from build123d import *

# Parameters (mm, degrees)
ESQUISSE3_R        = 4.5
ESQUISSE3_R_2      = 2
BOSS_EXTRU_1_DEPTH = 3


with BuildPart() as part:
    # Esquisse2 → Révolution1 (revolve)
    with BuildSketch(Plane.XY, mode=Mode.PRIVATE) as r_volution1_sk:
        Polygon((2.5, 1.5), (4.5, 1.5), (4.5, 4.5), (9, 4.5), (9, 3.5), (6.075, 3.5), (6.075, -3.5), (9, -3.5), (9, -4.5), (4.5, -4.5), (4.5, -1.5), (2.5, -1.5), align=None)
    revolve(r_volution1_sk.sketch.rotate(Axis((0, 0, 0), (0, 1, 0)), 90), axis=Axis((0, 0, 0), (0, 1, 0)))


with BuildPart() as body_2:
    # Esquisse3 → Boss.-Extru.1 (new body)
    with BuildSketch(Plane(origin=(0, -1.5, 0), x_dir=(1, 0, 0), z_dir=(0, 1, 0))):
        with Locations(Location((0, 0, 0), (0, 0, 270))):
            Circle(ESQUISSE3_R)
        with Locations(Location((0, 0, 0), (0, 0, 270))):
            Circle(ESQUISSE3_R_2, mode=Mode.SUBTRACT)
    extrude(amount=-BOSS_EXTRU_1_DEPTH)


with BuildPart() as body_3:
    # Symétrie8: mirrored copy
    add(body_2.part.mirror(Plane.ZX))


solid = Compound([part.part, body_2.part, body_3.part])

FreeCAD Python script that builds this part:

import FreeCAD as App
import Part
import Sketcher
Q = App.Units.Quantity

doc = App.newDocument("Part")
params = doc.addObject("Spreadsheet::Sheet", "Params")
for row, (alias, value) in enumerate([
    ("sketch1_width", "2 mm"),
    ("sketch1_height", "3 mm"),
    ("sketch1_height2", "1 mm"),
    ("sketch1_width2", "4.5 mm"),
    ("revolution_angle", "360 deg"),
    ("sketch2_diameter", "9 mm"),
    ("sketch2_diameter2", "4 mm"),
    ("pad1_length", "3 mm"),
], start=1):
    params.set(f"A{row}", alias)
    params.set(f"B{row}", "=" + value)
    params.setAlias(f"B{row}", alias)

body = doc.addObject("PartDesign::Body", "Body")

# Sketch on XY plane
sketch1 = doc.addObject("Sketcher::SketchObject", "Sketch")
body.addObject(sketch1)
sketch1.AttachmentSupport = (doc.XY_Plane, [""])
sketch1.MapMode = "FlatFace"
sketch1.addGeometry([
    Part.LineSegment(App.Vector(4.5, 1.5, 0), App.Vector(2.5, 1.5, 0)),  # 0
    Part.LineSegment(App.Vector(2.5, 1.5, 0), App.Vector(2.5, -1.5, 0)),  # 1
    Part.LineSegment(App.Vector(2.5, -1.5, 0), App.Vector(4.5, -1.5, 0)),  # 2
    Part.LineSegment(App.Vector(4.5, -1.5, 0), App.Vector(4.5, -4.5, 0)),  # 3
    Part.LineSegment(App.Vector(4.5, -4.5, 0), App.Vector(9, -4.5, 0)),  # 4
    Part.LineSegment(App.Vector(9, -4.5, 0), App.Vector(9, -3.5, 0)),  # 5
    Part.LineSegment(App.Vector(9, -3.5, 0), App.Vector(6.075, -3.5, 0)),  # 6
    Part.LineSegment(App.Vector(6.075, -3.5, 0), App.Vector(6.075, 3.5, 0)),  # 7
    Part.LineSegment(App.Vector(6.075, 3.5, 0), App.Vector(9, 3.5, 0)),  # 8
    Part.LineSegment(App.Vector(9, 3.5, 0), App.Vector(9, 4.5, 0)),  # 9
    Part.LineSegment(App.Vector(9, 4.5, 0), App.Vector(4.5, 4.5, 0)),  # 10
    Part.LineSegment(App.Vector(4.5, 4.5, 0), App.Vector(4.5, 1.5, 0)),  # 11
], False)
sketch1.addConstraint([
    Sketcher.Constraint("Coincident", 0, 2, 1, 1),
    Sketcher.Constraint("Coincident", 1, 2, 2, 1),
    Sketcher.Constraint("Coincident", 2, 2, 3, 1),
    Sketcher.Constraint("Coincident", 3, 2, 4, 1),
    Sketcher.Constraint("Coincident", 4, 2, 5, 1),
    Sketcher.Constraint("Coincident", 5, 2, 6, 1),
    Sketcher.Constraint("Coincident", 6, 2, 7, 1),
    Sketcher.Constraint("Coincident", 7, 2, 8, 1),
    Sketcher.Constraint("Coincident", 8, 2, 9, 1),
    Sketcher.Constraint("Coincident", 9, 2, 10, 1),
    Sketcher.Constraint("Coincident", 10, 2, 11, 1),
    Sketcher.Constraint("Coincident", 11, 2, 0, 1),
    Sketcher.Constraint("Horizontal", 0),
    Sketcher.Constraint("Vertical", 1),
    Sketcher.Constraint("Horizontal", 2),
    Sketcher.Constraint("Vertical", 3),
    Sketcher.Constraint("Horizontal", 4),
    Sketcher.Constraint("Vertical", 5),
    Sketcher.Constraint("Horizontal", 6),
    Sketcher.Constraint("Vertical", 7),
    Sketcher.Constraint("Horizontal", 8),
    Sketcher.Constraint("Vertical", 9),
    Sketcher.Constraint("Horizontal", 10),
    Sketcher.Constraint("Vertical", 11),
    Sketcher.Constraint("Symmetric", 5, 2, 8, 2, -1),
    Sketcher.Constraint("Symmetric", 3, 2, 10, 2, -1),
    Sketcher.Constraint("Equal", 1, 3),
    Sketcher.Constraint("Equal", 3, 11),
    Sketcher.Constraint("DistanceX", 0, 2, 0, 1, Q("2 mm")),
    Sketcher.Constraint("DistanceY", 1, 2, 1, 1, Q("3 mm")),
    Sketcher.Constraint("DistanceY", 5, 1, 5, 2, Q("1 mm")),
    Sketcher.Constraint("DistanceX", 4, 1, 4, 2, Q("4.5 mm")),
    Sketcher.Constraint("DistanceX", -1, 1, 4, 2, Q("9 mm")),
    Sketcher.Constraint("DistanceX", 6, 2, 6, 1, Q("2.925 mm")),
])
sketch1.setExpression("Constraints[28]", "Params.sketch1_width")
sketch1.setExpression("Constraints[29]", "Params.sketch1_height")
sketch1.setExpression("Constraints[30]", "Params.sketch1_height2")
sketch1.setExpression("Constraints[31]", "Params.sketch1_width2")
revolution = doc.addObject("PartDesign::Revolution", "Revolution")
body.addObject(revolution)
revolution.Profile = sketch1
revolution.ReferenceAxis = (sketch1, ["V_Axis"])
revolution.setExpression("Angle", "Params.revolution_angle")
body2 = doc.addObject("PartDesign::Body", "Body001")

# Sketch on XZ plane
sketch2 = doc.addObject("Sketcher::SketchObject", "Sketch001")
body2.addObject(sketch2)
sketch2.AttachmentSupport = (doc.getObject("XZ_Plane001"), [""])
sketch2.MapMode = "FlatFace"
sketch2.AttachmentOffset = App.Placement(App.Vector(0, 0, 1.5), App.Rotation())
sketch2.addGeometry([
    Part.Circle(App.Vector(0, 0, 0), App.Vector(0, 0, 1), 4.5),
    Part.Circle(App.Vector(0, 0, 0), App.Vector(0, 0, 1), 2),
], False)
sketch2.addConstraint([
    Sketcher.Constraint("Coincident", 0, 3, -1, 1),
    Sketcher.Constraint("Coincident", 1, 3, -1, 1),
    Sketcher.Constraint("Diameter", 0, Q("9 mm")),
    Sketcher.Constraint("Diameter", 1, Q("4 mm")),
])
sketch2.setExpression("Constraints[2]", "Params.sketch2_diameter")
sketch2.setExpression("Constraints[3]", "Params.sketch2_diameter2")
pad1 = doc.addObject("PartDesign::Pad", "Pad")
body2.addObject(pad1)
pad1.Profile = sketch2
pad1.setExpression("Length", "Params.pad1_length")
body3 = doc.addObject("PartDesign::Body", "Body002")
doc.recompute()

mirroring = doc.addObject("Part::Mirroring", "Mirroring")
mirroring.Source = body2
mirroring.Base = App.Vector(0, 0, 0)
mirroring.Normal = App.Vector(0, 1, 0)
body3.BaseFeature = mirroring
doc.recompute()
mirroring.Visibility = False

doc.recompute()
